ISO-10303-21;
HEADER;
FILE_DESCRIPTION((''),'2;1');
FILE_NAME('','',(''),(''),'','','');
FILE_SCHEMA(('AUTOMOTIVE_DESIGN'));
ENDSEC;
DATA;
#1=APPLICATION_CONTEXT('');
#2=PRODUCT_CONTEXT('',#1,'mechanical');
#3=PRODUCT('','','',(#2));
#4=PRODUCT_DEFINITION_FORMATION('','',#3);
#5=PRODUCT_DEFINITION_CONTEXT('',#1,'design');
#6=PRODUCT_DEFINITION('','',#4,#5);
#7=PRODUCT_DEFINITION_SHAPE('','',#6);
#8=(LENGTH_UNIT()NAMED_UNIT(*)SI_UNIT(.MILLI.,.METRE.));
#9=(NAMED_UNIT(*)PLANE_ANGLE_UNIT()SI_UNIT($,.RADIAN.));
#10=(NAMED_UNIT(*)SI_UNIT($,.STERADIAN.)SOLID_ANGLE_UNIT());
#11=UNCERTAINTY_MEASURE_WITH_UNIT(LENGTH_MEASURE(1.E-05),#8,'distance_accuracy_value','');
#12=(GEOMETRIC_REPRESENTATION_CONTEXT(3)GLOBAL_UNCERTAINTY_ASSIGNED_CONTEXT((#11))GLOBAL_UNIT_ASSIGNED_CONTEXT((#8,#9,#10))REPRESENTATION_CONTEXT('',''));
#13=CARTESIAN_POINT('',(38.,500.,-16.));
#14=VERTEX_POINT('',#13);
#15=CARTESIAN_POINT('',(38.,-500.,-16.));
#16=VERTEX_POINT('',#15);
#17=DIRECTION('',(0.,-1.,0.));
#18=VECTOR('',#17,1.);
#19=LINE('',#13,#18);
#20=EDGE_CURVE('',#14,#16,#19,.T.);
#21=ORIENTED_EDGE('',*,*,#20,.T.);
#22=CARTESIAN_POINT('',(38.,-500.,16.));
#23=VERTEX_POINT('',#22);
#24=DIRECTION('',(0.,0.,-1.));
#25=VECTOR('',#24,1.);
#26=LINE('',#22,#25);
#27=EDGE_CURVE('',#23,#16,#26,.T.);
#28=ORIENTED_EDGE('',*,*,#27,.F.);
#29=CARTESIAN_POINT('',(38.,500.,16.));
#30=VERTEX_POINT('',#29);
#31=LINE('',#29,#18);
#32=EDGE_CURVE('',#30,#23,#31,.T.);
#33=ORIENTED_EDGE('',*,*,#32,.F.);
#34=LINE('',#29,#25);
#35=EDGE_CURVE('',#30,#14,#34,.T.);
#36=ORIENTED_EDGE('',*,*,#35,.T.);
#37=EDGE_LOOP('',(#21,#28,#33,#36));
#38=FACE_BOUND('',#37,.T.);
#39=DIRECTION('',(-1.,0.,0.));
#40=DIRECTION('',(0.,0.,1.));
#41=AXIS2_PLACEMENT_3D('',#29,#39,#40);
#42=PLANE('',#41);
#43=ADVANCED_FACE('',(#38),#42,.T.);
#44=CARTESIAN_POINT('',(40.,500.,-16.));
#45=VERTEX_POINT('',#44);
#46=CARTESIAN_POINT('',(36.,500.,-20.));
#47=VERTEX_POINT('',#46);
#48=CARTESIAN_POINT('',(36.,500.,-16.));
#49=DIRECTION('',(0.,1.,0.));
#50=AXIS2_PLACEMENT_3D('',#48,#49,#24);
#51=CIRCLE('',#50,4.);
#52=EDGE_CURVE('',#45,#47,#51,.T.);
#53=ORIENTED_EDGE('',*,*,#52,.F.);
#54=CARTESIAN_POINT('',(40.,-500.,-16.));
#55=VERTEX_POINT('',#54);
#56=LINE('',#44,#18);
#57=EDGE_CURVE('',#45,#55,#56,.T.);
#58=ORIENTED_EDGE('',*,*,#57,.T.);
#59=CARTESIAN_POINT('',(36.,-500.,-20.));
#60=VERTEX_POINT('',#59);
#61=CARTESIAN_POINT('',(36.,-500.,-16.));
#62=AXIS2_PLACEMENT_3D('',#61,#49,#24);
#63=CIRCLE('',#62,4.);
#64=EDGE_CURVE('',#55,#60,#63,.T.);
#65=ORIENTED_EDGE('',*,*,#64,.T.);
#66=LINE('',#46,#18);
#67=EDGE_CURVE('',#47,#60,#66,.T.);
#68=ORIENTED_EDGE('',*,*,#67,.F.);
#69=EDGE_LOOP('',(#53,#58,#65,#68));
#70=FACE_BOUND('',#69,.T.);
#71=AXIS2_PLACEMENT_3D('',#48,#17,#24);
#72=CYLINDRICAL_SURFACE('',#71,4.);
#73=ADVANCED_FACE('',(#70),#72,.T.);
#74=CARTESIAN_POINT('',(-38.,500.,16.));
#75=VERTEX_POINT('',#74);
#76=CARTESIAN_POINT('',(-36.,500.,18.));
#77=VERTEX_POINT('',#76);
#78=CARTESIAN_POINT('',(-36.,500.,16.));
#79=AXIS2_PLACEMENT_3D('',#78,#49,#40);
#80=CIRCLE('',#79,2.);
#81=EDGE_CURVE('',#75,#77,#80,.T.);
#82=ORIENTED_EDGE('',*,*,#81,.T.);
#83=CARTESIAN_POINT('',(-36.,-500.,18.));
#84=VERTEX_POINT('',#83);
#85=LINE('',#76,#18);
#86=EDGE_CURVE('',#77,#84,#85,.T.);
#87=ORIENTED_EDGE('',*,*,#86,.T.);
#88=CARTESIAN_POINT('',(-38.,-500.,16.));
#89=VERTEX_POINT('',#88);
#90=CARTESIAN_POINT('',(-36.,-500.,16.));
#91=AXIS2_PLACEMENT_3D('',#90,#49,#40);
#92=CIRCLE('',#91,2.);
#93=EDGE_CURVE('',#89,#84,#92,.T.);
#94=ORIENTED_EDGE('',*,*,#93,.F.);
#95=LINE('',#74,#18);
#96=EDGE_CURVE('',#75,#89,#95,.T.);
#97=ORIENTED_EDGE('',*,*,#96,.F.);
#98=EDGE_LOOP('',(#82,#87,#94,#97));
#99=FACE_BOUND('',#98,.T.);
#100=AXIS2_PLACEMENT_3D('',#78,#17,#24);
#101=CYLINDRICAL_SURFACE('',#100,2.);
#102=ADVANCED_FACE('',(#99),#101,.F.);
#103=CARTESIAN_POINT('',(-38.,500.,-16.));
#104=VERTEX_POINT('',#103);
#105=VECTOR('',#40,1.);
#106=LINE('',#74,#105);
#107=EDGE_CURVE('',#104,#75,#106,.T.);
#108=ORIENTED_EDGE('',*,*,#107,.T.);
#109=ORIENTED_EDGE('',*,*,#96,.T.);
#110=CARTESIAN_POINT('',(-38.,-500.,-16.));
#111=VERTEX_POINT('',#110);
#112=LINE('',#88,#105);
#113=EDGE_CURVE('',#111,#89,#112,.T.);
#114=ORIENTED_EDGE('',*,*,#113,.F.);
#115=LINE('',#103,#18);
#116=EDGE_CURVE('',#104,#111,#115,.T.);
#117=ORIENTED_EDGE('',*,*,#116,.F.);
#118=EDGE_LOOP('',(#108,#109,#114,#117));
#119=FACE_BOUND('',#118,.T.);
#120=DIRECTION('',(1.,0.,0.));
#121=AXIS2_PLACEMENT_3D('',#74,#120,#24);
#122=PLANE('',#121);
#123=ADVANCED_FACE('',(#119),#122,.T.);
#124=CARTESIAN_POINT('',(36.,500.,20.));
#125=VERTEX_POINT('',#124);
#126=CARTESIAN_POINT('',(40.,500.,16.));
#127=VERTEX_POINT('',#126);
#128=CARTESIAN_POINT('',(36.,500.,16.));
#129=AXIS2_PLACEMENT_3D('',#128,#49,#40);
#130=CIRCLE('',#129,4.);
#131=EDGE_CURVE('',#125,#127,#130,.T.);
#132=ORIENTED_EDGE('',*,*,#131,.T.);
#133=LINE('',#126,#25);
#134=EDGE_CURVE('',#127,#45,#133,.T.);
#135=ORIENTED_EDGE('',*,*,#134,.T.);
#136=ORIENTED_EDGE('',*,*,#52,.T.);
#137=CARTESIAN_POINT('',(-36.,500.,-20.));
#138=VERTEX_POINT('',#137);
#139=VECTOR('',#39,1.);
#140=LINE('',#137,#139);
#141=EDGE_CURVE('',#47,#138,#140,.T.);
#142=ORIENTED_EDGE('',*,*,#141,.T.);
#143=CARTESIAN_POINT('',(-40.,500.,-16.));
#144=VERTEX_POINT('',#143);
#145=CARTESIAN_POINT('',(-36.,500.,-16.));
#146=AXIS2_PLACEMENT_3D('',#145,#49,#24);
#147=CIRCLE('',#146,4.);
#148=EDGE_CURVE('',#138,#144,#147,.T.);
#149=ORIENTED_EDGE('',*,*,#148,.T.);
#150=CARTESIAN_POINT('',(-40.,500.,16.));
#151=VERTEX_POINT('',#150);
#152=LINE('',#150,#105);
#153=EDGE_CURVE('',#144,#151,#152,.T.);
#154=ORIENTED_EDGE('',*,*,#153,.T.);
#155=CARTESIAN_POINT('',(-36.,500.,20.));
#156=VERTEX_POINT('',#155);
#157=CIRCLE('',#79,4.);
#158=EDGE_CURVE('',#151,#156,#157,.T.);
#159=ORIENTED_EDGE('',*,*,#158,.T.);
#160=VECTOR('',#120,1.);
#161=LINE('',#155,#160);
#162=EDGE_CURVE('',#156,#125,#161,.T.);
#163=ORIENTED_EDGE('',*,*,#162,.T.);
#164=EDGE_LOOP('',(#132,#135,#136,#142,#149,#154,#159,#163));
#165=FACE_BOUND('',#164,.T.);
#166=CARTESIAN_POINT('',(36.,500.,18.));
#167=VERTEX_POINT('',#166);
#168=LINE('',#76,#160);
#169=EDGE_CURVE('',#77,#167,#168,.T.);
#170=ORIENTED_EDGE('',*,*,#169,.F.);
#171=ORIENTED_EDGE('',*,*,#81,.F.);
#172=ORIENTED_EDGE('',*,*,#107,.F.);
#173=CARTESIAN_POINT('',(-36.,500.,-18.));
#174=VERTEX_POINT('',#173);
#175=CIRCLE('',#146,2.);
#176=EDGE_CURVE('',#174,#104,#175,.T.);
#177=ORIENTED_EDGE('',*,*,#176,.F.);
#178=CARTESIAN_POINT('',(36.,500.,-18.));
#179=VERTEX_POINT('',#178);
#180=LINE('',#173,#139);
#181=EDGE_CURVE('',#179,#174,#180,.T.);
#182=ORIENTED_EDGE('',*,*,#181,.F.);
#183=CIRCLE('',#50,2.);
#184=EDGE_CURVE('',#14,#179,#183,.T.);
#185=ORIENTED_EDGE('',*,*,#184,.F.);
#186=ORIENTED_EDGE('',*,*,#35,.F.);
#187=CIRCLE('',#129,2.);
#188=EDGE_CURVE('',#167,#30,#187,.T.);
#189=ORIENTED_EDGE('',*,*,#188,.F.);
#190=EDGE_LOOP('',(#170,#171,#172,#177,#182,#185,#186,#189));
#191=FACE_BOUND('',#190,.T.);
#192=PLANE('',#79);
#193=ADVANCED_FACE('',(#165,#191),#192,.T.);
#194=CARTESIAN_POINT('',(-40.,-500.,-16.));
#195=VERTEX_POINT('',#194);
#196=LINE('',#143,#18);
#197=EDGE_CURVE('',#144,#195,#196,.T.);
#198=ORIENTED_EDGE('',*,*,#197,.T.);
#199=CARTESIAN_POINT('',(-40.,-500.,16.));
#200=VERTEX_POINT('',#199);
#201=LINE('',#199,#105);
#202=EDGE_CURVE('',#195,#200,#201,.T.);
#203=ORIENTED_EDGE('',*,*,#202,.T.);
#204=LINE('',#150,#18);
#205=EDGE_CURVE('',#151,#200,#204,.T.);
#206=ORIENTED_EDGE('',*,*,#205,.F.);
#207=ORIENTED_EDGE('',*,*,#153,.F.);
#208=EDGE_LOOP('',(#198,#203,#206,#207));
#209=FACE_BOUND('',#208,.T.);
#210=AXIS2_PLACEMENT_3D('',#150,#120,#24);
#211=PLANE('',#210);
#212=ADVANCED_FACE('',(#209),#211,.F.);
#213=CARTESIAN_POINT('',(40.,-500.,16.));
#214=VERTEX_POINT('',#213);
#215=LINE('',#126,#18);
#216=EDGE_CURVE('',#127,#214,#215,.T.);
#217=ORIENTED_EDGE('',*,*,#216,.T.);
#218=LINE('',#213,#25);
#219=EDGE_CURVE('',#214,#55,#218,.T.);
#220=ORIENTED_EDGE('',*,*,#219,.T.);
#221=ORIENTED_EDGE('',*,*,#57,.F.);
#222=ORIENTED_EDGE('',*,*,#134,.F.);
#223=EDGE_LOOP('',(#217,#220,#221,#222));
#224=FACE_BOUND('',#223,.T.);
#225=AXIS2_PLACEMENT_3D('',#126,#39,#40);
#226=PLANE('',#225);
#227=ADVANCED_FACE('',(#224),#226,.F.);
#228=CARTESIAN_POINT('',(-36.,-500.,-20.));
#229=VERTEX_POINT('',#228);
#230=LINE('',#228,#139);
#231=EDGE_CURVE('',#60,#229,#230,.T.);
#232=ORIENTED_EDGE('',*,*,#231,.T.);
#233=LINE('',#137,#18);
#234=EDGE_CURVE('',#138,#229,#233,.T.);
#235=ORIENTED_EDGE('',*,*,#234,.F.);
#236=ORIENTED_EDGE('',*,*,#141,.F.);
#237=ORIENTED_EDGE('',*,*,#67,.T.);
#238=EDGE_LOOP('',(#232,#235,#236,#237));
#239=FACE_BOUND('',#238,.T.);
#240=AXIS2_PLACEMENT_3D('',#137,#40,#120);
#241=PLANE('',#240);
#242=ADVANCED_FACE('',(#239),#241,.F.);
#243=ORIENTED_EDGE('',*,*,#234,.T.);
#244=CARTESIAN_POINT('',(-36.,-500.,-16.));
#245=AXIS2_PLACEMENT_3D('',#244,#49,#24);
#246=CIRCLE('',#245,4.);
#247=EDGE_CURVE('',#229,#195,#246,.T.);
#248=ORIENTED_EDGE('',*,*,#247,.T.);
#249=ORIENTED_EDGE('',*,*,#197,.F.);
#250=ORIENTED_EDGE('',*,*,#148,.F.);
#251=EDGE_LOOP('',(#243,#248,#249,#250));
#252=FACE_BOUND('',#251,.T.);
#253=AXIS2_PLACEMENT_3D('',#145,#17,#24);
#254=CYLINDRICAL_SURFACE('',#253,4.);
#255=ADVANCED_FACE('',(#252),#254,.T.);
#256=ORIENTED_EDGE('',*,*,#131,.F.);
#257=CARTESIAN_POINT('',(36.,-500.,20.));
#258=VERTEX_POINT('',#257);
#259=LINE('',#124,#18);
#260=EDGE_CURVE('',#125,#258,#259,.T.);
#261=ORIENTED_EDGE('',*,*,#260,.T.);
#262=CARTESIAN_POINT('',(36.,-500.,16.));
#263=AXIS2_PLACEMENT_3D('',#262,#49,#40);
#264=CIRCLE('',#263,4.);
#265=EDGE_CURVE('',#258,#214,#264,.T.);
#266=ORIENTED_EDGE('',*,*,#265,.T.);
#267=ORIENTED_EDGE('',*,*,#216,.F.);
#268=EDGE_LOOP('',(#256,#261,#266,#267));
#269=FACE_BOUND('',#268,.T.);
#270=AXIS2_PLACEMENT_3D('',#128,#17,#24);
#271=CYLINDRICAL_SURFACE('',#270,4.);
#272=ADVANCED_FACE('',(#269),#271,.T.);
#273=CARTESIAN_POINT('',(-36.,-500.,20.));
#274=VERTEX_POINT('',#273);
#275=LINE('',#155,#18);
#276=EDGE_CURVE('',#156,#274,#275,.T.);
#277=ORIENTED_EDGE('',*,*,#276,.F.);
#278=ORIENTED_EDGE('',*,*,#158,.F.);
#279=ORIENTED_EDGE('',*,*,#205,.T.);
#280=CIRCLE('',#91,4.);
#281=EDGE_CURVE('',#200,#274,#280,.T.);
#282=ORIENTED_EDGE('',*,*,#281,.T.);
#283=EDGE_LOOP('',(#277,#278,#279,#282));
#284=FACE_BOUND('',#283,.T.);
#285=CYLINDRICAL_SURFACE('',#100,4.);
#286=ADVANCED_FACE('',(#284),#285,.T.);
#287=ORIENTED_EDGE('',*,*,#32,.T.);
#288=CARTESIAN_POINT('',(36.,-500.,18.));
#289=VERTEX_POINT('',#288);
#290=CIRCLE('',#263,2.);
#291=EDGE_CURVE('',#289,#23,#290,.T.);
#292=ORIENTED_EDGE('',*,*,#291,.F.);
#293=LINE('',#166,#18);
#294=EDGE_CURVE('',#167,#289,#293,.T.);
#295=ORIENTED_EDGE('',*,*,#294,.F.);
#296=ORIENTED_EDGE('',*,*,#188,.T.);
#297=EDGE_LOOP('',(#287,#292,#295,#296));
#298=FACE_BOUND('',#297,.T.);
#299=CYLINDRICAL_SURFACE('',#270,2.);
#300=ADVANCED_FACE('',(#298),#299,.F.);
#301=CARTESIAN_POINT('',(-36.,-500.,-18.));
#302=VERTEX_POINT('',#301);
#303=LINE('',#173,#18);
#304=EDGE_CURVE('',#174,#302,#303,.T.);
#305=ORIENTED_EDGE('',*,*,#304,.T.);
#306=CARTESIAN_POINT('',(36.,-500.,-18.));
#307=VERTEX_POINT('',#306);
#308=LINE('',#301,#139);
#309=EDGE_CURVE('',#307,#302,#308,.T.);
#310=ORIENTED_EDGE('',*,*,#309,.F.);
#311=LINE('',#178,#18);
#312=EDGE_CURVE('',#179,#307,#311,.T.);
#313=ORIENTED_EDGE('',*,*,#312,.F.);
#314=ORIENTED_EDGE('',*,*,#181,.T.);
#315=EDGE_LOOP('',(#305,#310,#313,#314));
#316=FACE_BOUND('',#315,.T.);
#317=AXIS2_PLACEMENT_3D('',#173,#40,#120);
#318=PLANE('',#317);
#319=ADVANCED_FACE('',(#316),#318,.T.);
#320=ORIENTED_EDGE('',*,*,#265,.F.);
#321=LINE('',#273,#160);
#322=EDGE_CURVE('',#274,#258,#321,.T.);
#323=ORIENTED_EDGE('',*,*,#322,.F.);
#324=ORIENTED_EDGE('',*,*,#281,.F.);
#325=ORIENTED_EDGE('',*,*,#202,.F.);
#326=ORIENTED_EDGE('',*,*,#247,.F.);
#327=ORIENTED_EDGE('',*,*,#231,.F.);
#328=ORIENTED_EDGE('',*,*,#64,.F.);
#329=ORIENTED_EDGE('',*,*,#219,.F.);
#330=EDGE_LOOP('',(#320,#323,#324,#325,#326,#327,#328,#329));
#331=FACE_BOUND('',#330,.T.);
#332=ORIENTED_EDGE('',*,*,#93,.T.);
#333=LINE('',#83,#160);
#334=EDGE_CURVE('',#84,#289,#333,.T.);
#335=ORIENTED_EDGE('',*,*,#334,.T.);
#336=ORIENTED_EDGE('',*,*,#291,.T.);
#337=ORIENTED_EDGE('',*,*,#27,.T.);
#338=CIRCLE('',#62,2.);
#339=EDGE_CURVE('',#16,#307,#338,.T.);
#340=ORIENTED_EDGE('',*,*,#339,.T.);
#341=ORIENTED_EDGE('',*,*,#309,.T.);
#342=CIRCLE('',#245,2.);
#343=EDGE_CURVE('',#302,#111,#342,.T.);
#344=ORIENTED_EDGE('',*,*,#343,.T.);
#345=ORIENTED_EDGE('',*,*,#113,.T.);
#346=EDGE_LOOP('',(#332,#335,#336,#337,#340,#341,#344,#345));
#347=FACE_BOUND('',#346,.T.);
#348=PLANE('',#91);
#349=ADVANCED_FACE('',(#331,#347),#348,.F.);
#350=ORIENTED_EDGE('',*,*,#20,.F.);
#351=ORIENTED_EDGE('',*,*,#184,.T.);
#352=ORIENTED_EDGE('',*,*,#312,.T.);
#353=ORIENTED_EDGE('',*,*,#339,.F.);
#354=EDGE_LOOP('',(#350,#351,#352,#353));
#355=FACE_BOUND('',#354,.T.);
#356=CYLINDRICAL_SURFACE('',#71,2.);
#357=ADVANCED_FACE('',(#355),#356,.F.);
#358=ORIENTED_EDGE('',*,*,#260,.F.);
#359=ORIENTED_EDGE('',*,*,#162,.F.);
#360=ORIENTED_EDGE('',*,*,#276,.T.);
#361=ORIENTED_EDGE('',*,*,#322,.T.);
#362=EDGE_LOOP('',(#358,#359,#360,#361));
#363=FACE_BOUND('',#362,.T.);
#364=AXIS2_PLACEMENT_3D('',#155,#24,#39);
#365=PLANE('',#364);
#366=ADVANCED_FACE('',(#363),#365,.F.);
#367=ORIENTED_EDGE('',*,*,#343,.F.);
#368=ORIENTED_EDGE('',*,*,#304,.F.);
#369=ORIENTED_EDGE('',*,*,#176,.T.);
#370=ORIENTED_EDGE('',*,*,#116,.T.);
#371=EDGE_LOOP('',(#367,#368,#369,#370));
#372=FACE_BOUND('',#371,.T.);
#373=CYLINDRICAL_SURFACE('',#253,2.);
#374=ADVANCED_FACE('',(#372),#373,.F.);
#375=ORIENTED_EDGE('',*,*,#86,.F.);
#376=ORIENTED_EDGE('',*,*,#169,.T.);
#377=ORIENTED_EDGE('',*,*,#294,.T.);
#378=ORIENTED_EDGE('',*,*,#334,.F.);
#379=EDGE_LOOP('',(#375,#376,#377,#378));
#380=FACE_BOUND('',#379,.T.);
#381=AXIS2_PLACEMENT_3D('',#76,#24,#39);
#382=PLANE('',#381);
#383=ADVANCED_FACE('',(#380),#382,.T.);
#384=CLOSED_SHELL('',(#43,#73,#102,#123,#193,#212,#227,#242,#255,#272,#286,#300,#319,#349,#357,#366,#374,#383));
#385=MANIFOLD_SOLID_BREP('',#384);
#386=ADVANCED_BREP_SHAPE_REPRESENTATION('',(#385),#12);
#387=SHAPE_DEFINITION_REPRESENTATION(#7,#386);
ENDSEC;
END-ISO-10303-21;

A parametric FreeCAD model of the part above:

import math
import FreeCAD as App
import Part
import Sketcher
from FreeCAD import Vector
Q = App.Units.Quantity

doc = App.newDocument("Part")
body = doc.addObject("PartDesign::Body", "Body")

# Sketch on XZ plane
sketch1 = body.newObject("Sketcher::SketchObject", "Sketch")
sketch1.AttachmentSupport = (doc.getObject("XZ_Plane"), [""])
sketch1.MapMode = "FlatFace"
sketch1.addGeometry([
    Part.LineSegment(Vector(-36, 20, 0), Vector(36, 20, 0)),  # 0
    Part.ArcOfCircle(Part.Circle(Vector(36, 16, 0), Vector(0, 0, 1), 4), math.radians(0), math.radians(90)),  # 1
    Part.LineSegment(Vector(40, 16, 0), Vector(40, -16, 0)),  # 2
    Part.ArcOfCircle(Part.Circle(Vector(36, -16, 0), Vector(0, 0, 1), 4), math.radians(-90), math.radians(0)),  # 3
    Part.LineSegment(Vector(36, -20, 0), Vector(-36, -20, 0)),  # 4
    Part.ArcOfCircle(Part.Circle(Vector(-36, -16, 0), Vector(0, 0, 1), 4), math.radians(180), math.radians(270)),  # 5
    Part.LineSegment(Vector(-40, -16, 0), Vector(-40, 16, 0)),  # 6
    Part.ArcOfCircle(Part.Circle(Vector(-36, 16, 0), Vector(0, 0, 1), 4), math.radians(90), math.radians(180)),  # 7
    Part.ArcOfCircle(Part.Circle(Vector(-36, 16, 0), Vector(0, 0, 1), 2), math.radians(90), math.radians(180)),  # 8
    Part.LineSegment(Vector(-38, 16, 0), Vector(-38, -16, 0)),  # 9
    Part.ArcOfCircle(Part.Circle(Vector(-36, -16, 0), Vector(0, 0, 1), 2), math.radians(-180), math.radians(-90)),  # 10
    Part.LineSegment(Vector(-36, -18, 0), Vector(36, -18, 0)),  # 11
    Part.ArcOfCircle(Part.Circle(Vector(36, -16, 0), Vector(0, 0, 1), 2), math.radians(-90), math.radians(0)),  # 12
    Part.LineSegment(Vector(38, -16, 0), Vector(38, 16, 0)),  # 13
    Part.ArcOfCircle(Part.Circle(Vector(36, 16, 0), Vector(0, 0, 1), 2), math.radians(0), math.radians(90)),  # 14
    Part.LineSegment(Vector(36, 18, 0), Vector(-36, 18, 0)),  # 15
], False)
sketch1.addConstraint([
    Sketcher.Constraint("Tangent", 0, 2, 1, 2),
    Sketcher.Constraint("Tangent", 1, 1, 2, 1),
    Sketcher.Constraint("Tangent", 2, 2, 3, 2),
    Sketcher.Constraint("Tangent", 3, 1, 4, 1),
    Sketcher.Constraint("Tangent", 4, 2, 5, 2),
    Sketcher.Constraint("Tangent", 5, 1, 6, 1),
    Sketcher.Constraint("Tangent", 6, 2, 7, 2),
    Sketcher.Constraint("Tangent", 7, 1, 0, 1),
    Sketcher.Constraint("Tangent", 8, 2, 9, 1),
    Sketcher.Constraint("Tangent", 9, 2, 10, 1),
    Sketcher.Constraint("Tangent", 10, 2, 11, 1),
    Sketcher.Constraint("Tangent", 11, 2, 12, 1),
    Sketcher.Constraint("Tangent", 12, 2, 13, 1),
    Sketcher.Constraint("Tangent", 13, 2, 14, 1),
    Sketcher.Constraint("Tangent", 14, 2, 15, 1),
    Sketcher.Constraint("Tangent", 15, 2, 8, 1),
    Sketcher.Constraint("Horizontal", 0),
    Sketcher.Constraint("Vertical", 2),
    Sketcher.Constraint("Horizontal", 4),
    Sketcher.Constraint("Vertical", 6),
    Sketcher.Constraint("Vertical", 9),
    Sketcher.Constraint("Horizontal", 11),
    Sketcher.Constraint("Vertical", 13),
    Sketcher.Constraint("Horizontal", 15),
    Sketcher.Constraint("Coincident", 8, 3, 7, 3),
    Sketcher.Constraint("Coincident", 10, 3, 5, 3),
    Sketcher.Constraint("Coincident", 12, 3, 3, 3),
    Sketcher.Constraint("Equal", 1, 3),
    Sketcher.Constraint("Equal", 3, 5),
    Sketcher.Constraint("Equal", 5, 7),
    Sketcher.Constraint("Equal", 12, 14),
    Sketcher.Constraint("Symmetric", 1, 3, 5, 3, -1, 1),
    Sketcher.Constraint("Radius", 1, Q("4 mm")),
    Sketcher.Constraint("Radius", 8, Q("2 mm")),
    Sketcher.Constraint("DistanceX", 0, 1, 0, 2, Q("72 mm")),
    Sketcher.Constraint("DistanceY", 2, 2, 2, 1, Q("32 mm")),
])
pad1 = body.newObject("PartDesign::Pad", "Pad")
pad1.Profile = sketch1
pad1.Length = 1000
pad1.Midplane = True

doc.recompute()
